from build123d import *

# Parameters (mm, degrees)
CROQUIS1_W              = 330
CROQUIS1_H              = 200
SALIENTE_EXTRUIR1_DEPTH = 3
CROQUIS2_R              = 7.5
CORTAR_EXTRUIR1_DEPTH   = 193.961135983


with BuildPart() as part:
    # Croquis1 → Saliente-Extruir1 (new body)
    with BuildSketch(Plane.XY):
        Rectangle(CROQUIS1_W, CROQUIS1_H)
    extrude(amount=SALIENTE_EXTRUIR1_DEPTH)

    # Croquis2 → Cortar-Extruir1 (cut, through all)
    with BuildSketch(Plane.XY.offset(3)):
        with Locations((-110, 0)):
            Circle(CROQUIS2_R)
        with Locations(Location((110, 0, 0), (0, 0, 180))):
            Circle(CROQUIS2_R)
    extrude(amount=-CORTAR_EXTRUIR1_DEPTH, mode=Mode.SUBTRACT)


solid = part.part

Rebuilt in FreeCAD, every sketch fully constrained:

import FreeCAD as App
import Part
import Sketcher
from FreeCAD import Vector
Q = App.Units.Quantity

doc = App.newDocument("Part")
body = doc.addObject("PartDesign::Body", "Body")

sketch1 = body.newObject("Sketcher::SketchObject", "Sketch")
sketch1.AttachmentSupport = (doc.getObject("XY_Plane"), [""])
sketch1.MapMode = "FlatFace"
sketch1.addGeometry([
    Part.LineSegment(Vector(-165, 100, 0), Vector(-165, -100, 0)),
    Part.LineSegment(Vector(-165, -100, 0), Vector(165, -100, 0)),
    Part.LineSegment(Vector(165, -100, 0), Vector(165, 100, 0)),
    Part.LineSegment(Vector(165, 100, 0), Vector(-165, 100, 0)),
], False)
sketch1.addConstraint([
    Sketcher.Constraint("Coincident", 0, 2, 1, 1),
    Sketcher.Constraint("Coincident", 1, 2, 2, 1),
    Sketcher.Constraint("Coincident", 2, 2, 3, 1),
    Sketcher.Constraint("Coincident", 3, 2, 0, 1),
    Sketcher.Constraint("Vertical", 0),
    Sketcher.Constraint("Horizontal", 1),
    Sketcher.Constraint("Vertical", 2),
    Sketcher.Constraint("Horizontal", 3),
    Sketcher.Constraint("Symmetric", 0, 2, 2, 2, -1, 1),
    Sketcher.Constraint("DistanceX", 1, 1, 1, 2, Q("330 mm")),
    Sketcher.Constraint("DistanceY", 0, 2, 0, 1, Q("200 mm")),
])
pad1 = body.newObject("PartDesign::Pad", "Pad")
pad1.Profile = sketch1
pad1.Length = 3

sketch2 = body.newObject("Sketcher::SketchObject", "Sketch001")
sketch2.AttachmentSupport = (doc.getObject("XY_Plane"), [""])
sketch2.MapMode = "FlatFace"
sketch2.AttachmentOffset = App.Placement(Vector(0, 0, 3), App.Rotation())
sketch2.addGeometry([
    Part.Circle(Vector(-110, 0, 0), Vector(0, 0, 1), 8),
    Part.Circle(Vector(110, 0, 0), Vector(0, 0, 1), 8),
], False)
sketch2.addConstraint([
    Sketcher.Constraint("Equal", 0, 1),
    Sketcher.Constraint("Symmetric", 0, 3, 1, 3, -1, 1),
    Sketcher.Constraint("PointOnObject", 0, 3, -1),
    Sketcher.Constraint("Diameter", 0, Q("15 mm")),
    Sketcher.Constraint("DistanceX", 0, 3, -1, 1, Q("110 mm")),
])
pocket1 = body.newObject("PartDesign::Pocket", "Pocket")
pocket1.Profile = sketch2
pocket1.Type = "ThroughAll"

doc.recompute()
